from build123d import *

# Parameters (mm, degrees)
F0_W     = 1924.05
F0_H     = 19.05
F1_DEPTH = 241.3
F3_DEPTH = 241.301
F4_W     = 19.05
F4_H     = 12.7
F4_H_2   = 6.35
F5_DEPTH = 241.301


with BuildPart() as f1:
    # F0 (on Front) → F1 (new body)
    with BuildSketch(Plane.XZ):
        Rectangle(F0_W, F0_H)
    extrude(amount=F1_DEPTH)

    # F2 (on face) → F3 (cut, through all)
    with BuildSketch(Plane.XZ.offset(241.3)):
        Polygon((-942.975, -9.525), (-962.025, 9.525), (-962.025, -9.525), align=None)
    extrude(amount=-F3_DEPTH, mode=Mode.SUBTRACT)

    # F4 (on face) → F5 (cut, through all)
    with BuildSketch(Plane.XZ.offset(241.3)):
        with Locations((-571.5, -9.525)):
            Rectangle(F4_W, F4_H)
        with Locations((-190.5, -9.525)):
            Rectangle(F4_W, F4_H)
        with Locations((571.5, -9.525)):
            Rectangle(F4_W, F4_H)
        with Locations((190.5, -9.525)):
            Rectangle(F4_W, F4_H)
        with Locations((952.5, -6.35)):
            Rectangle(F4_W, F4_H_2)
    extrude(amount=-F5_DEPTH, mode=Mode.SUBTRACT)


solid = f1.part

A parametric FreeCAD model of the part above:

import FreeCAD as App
import Part
import Sketcher

V = App.Vector
Q = App.Units.Quantity


def add_polygon(sketch, points):
    """Adds a closed chain of lines whose ends are joined by coincident constraints."""
    first, n = sketch.GeometryCount, len(points)
    for a, b in zip(points, points[1:] + points[:1]):
        sketch.addGeometry(Part.LineSegment(App.Vector(*a, 0), App.Vector(*b, 0)), False)
    for i in range(n):
        sketch.addConstraint(Sketcher.Constraint("Coincident", first + i, 2, first + (i + 1) % n, 1))

doc = App.newDocument("Part")
params = doc.addObject("Spreadsheet::Sheet", "Params")
for row, (alias, value) in enumerate([
    ("sketch1_width", "75.75 in"),
    ("sketch1_height", "0.75 in"),
    ("pad1_length", "9.5 in"),
    ("sketch2_width", "0.75 in"),
    ("sketch3_height", "0.5 in"),
    ("sketch3_width", "0.75 in"),
    ("sketch3_height2", "0.25 in"),
], start=1):
    params.set(f"A{row}", alias)
    params.set(f"B{row}", "=" + value)
    params.setAlias(f"B{row}", alias)

body = doc.addObject("PartDesign::Body", "Body")

sketch1 = body.newObject("Sketcher::SketchObject", "Sketch")
sketch1.AttachmentSupport = (doc.getObject("XZ_Plane"), [""])
sketch1.MapMode = "FlatFace"
add_polygon(sketch1, [(-962, 10), (-962, -10), (962, -10), (962, 10)])
sketch1.addConstraint([
    Sketcher.Constraint("Vertical", 0),
    Sketcher.Constraint("Horizontal", 1),
    Sketcher.Constraint("Vertical", 2),
    Sketcher.Constraint("Horizontal", 3),
    Sketcher.Constraint("Symmetric", 0, 2, 2, 2, -1, 1),
    Sketcher.Constraint("DistanceX", 1, 1, 1, 2, Q("75.75 in")),
    Sketcher.Constraint("DistanceY", 0, 2, 0, 1, Q("0.75 in")),
])
sketch1.setExpression("Constraints[9]", "Params.sketch1_width")
sketch1.setExpression("Constraints[10]", "Params.sketch1_height")
pad1 = body.newObject("PartDesign::Pad", "Pad")
pad1.Profile = sketch1
pad1.setExpression("Length", "Params.pad1_length")

sketch2 = body.newObject("Sketcher::SketchObject", "Sketch001")
sketch2.AttachmentSupport = (doc.getObject("XZ_Plane"), [""])
sketch2.MapMode = "FlatFace"
sketch2.AttachmentOffset = App.Placement(V(0, 0, 9.5 * 25.4), App.Rotation())
add_polygon(sketch2, [(-943, -10), (-962, 10), (-962, -10)])
sketch2.addConstraint([
    Sketcher.Constraint("Vertical", 1),
    Sketcher.Constraint("Horizontal", 2),
    Sketcher.Constraint("Equal", 2, 1),
    Sketcher.Constraint("DistanceX", 2, 1, 2, 2, Q("0.75 in")),
    Sketcher.Constraint("DistanceX", 0, 2, -1, 1, Q("37.875 in")),
    Sketcher.Constraint("DistanceY", -1, 1, 0, 2, Q("0.375 in")),
])
sketch2.setExpression("Constraints[6]", "Params.sketch2_width")
pocket1 = body.newObject("PartDesign::Pocket", "Pocket")
pocket1.Profile = sketch2
pocket1.Type = "ThroughAll"

sketch3 = body.newObject("Sketcher::SketchObject", "Sketch002")
sketch3.AttachmentSupport = (doc.getObject("XZ_Plane"), [""])
sketch3.MapMode = "FlatFace"
sketch3.AttachmentOffset = App.Placement(V(0, 0, 9.5 * 25.4), App.Rotation())
add_polygon(sketch3, [(-581, -3), (-581, -16), (-562, -16), (-562, -3)])
add_polygon(sketch3, [(-200, -3), (-200, -16), (-181, -16), (-181, -3)])
add_polygon(sketch3, [(562, -3), (562, -16), (581, -16), (581, -3)])
add_polygon(sketch3, [(181, -3), (181, -16), (200, -16), (200, -3)])
add_polygon(sketch3, [(943, -3), (943, -10), (962, -10), (962, -3)])
sketch3.addConstraint([
    Sketcher.Constraint("Vertical", 0),
    Sketcher.Constraint("Horizontal", 1),
    Sketcher.Constraint("Vertical", 2),
    Sketcher.Constraint("Horizontal", 3),
    Sketcher.Constraint("Vertical", 4),
    Sketcher.Constraint("Horizontal", 5),
    Sketcher.Constraint("Vertical", 6),
    Sketcher.Constraint("Horizontal", 7),
    Sketcher.Constraint("Vertical", 8),
    Sketcher.Constraint("Horizontal", 9),
    Sketcher.Constraint("Vertical", 10),
    Sketcher.Constraint("Horizontal", 11),
    Sketcher.Constraint("Vertical", 12),
    Sketcher.Constraint("Horizontal", 13),
    Sketcher.Constraint("Vertical", 14),
    Sketcher.Constraint("Horizontal", 15),
    Sketcher.Constraint("Vertical", 16),
    Sketcher.Constraint("Horizontal", 17),
    Sketcher.Constraint("Vertical", 18),
    Sketcher.Constraint("Horizontal", 19),
    Sketcher.Constraint("Symmetric", 1, 2, 8, 2, -2),
    Sketcher.Constraint("Symmetric", 3, 2, 10, 2, -2),
    Sketcher.Constraint("Symmetric", 5, 2, 12, 2, -2),
    Sketcher.Constraint("Symmetric", 7, 2, 14, 2, -2),
    Sketcher.Constraint("Horizontal", 1, 2, 4, 2),
    Sketcher.Constraint("Horizontal", 3, 2, 6, 2),
    Sketcher.Constraint("Horizontal", 15, 2, 18, 2),
    Sketcher.Constraint("Equal", 3, 5),
    Sketcher.Constraint("Equal", 15, 17),
    Sketcher.Constraint("DistanceY", 0, 2, 0, 1, Q("0.5 in")),
    Sketcher.Constraint("DistanceX", 0, 2, 4, 2, Q("15 in")),
    Sketcher.Constraint("DistanceX", 4, 2, 8, 2, Q("30 in")),
    Sketcher.Constraint("DistanceX", 8, 2, 16, 2, Q("15 in")),
    Sketcher.Constraint("DistanceX", 1, 1, 1, 2, Q("0.75 in")),
    Sketcher.Constraint("DistanceY", 16, 2, 16, 1, Q("0.25 in")),
    Sketcher.Constraint("DistanceY", 0, 2, -1, 1, Q("0.625 in")),
])
sketch3.setExpression("Constraints[49]", "Params.sketch3_height")
sketch3.setExpression("Constraints[53]", "Params.sketch3_width")
sketch3.setExpression("Constraints[54]", "Params.sketch3_height2")
pocket2 = body.newObject("PartDesign::Pocket", "Pocket001")
pocket2.Profile = sketch3
pocket2.Type = "ThroughAll"

doc.recompute()
